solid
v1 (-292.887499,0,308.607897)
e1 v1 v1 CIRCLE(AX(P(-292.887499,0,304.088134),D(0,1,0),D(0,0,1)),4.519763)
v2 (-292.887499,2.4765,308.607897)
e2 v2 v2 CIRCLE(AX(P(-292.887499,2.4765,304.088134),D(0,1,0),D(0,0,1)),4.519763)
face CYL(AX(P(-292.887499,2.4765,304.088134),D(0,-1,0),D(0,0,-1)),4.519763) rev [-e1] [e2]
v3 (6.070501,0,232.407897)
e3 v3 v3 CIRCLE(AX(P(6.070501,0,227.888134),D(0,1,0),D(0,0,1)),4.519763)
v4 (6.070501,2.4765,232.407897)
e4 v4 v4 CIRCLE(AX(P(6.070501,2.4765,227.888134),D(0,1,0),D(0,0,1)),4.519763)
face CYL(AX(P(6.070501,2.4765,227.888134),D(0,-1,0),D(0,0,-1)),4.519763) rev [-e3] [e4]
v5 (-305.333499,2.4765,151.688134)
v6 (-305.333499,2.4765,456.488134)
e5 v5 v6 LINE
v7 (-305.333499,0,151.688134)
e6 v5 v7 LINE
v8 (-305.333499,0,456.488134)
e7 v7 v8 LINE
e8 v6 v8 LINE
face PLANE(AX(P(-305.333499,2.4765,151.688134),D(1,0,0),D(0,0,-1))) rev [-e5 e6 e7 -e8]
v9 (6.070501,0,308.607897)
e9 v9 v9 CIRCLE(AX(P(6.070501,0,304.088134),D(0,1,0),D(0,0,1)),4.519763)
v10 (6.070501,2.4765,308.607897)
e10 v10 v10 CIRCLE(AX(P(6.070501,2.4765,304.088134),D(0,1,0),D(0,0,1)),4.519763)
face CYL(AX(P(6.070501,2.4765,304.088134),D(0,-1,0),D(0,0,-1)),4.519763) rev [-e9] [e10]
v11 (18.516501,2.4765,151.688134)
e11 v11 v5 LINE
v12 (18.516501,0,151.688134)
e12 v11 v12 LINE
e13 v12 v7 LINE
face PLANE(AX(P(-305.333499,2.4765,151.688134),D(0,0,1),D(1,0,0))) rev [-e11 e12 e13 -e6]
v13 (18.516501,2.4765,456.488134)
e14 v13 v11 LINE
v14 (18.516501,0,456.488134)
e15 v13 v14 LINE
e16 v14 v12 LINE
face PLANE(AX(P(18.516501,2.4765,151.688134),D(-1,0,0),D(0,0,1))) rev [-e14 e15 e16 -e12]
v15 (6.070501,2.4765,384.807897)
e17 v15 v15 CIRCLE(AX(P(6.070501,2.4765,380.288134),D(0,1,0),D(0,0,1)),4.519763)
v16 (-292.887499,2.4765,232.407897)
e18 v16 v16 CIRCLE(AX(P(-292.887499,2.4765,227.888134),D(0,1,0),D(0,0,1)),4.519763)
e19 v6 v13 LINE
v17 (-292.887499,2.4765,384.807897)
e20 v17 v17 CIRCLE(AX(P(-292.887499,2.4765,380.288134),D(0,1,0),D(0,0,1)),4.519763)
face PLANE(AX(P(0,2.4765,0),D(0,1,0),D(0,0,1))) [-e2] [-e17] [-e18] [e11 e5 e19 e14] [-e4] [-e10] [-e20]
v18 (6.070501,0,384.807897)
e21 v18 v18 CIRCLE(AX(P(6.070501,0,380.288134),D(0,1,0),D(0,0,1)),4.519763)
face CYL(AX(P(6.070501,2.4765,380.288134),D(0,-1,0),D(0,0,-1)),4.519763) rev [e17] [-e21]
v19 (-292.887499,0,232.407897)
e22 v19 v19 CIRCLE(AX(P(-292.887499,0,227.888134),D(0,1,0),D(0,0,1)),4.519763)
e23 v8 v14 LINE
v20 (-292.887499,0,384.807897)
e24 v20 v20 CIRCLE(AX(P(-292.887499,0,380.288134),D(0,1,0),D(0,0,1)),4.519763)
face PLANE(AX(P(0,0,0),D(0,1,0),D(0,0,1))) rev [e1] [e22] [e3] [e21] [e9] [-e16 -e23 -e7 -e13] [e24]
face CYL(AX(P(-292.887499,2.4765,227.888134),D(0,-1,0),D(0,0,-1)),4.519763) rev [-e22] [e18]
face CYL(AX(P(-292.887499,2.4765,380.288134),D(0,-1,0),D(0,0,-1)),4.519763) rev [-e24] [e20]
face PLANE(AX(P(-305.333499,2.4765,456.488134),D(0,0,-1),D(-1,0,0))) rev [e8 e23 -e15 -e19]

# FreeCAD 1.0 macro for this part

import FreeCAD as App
import Part
import Sketcher

V = App.Vector
Q = App.Units.Quantity

doc = App.newDocument("Part")
body = doc.addObject("PartDesign::Body", "Body")

sketch1 = body.newObject("Sketcher::SketchObject", "Sketch")
sketch1.AttachmentSupport = (doc.getObject("XZ_Plane"), [""])
sketch1.MapMode = "FlatFace"
sketch1.addGeometry([
    Part.LineSegment(V(-305.333499, 151.688134, 0), V(-305.333499, 456.488134, 0)),
    Part.LineSegment(V(-305.333499, 456.488134, 0), V(18.516501, 456.488134, 0)),
    Part.LineSegment(V(18.516501, 456.488134, 0), V(18.516501, 151.688134, 0)),
    Part.LineSegment(V(18.516501, 151.688134, 0), V(-305.333499, 151.688134, 0)),
    Part.Circle(V(-292.887499, 380.288134, 0), V(0, 0, 1), 4.519763),
    Part.Circle(V(6.070501, 380.288134, 0), V(0, 0, 1), 4.519763),
    Part.Circle(V(-292.887499, 304.088134, 0), V(0, 0, 1), 4.519763),
    Part.Circle(V(-292.887499, 227.888134, 0), V(0, 0, 1), 4.519763),
    Part.Circle(V(6.070501, 304.088134, 0), V(0, 0, 1), 4.519763),
    Part.Circle(V(6.070501, 227.888134, 0), V(0, 0, 1), 4.519763),
], False)
sketch1.addConstraint([
    Sketcher.Constraint("Coincident", 0, 2, 1, 1),
    Sketcher.Constraint("Coincident", 1, 2, 2, 1),
    Sketcher.Constraint("Coincident", 2, 2, 3, 1),
    Sketcher.Constraint("Coincident", 3, 2, 0, 1),
    Sketcher.Constraint("Vertical", 0),
    Sketcher.Constraint("Horizontal", 1),
    Sketcher.Constraint("Vertical", 2),
    Sketcher.Constraint("Horizontal", 3),
    Sketcher.Constraint("Equal", 4, 5),
    Sketcher.Constraint("Equal", 5, 6),
    Sketcher.Constraint("Equal", 6, 7),
    Sketcher.Constraint("Equal", 7, 8),
    Sketcher.Constraint("Equal", 8, 9),
    Sketcher.Constraint("Horizontal", 4, 3, 5, 3),
    Sketcher.Constraint("Horizontal", 6, 3, 8, 3),
    Sketcher.Constraint("Horizontal", 7, 3, 9, 3),
    Sketcher.Constraint("Vertical", 4, 3, 6, 3),
    Sketcher.Constraint("Vertical", 6, 3, 7, 3),
    Sketcher.Constraint("Vertical", 5, 3, 8, 3),
    Sketcher.Constraint("Vertical", 8, 3, 9, 3),
    Sketcher.Constraint("DistanceY", 0, 1, 0, 2, Q("12 in")),
    Sketcher.Constraint("DistanceY", 6, 3, 4, 3, Q("3 in")),
    Sketcher.Constraint("DistanceY", 7, 3, 6, 3, Q("3 in")),
    Sketcher.Constraint("DistanceY", 4, 3, 0, 2, Q("3 in")),
    Sketcher.Constraint("DistanceX", 1, 1, 1, 2, Q("12.75 in")),
    Sketcher.Constraint("DistanceX", 4, 3, 5, 3, Q("11.77 in")),
    Sketcher.Constraint("DistanceX", 0, 2, 4, 3, Q("0.49 in")),
    Sketcher.Constraint("Diameter", 4, 9.039527),
    Sketcher.Constraint("DistanceX", 4, 3, -1, 1, 292.887499),
    Sketcher.Constraint("DistanceY", -1, 1, 4, 3, 380.288134),
])
pad1 = body.newObject("PartDesign::Pad", "Pad")
pad1.Profile = sketch1
pad1.Length = Q("0.0975 in")
pad1.Reversed = True

doc.recompute()
